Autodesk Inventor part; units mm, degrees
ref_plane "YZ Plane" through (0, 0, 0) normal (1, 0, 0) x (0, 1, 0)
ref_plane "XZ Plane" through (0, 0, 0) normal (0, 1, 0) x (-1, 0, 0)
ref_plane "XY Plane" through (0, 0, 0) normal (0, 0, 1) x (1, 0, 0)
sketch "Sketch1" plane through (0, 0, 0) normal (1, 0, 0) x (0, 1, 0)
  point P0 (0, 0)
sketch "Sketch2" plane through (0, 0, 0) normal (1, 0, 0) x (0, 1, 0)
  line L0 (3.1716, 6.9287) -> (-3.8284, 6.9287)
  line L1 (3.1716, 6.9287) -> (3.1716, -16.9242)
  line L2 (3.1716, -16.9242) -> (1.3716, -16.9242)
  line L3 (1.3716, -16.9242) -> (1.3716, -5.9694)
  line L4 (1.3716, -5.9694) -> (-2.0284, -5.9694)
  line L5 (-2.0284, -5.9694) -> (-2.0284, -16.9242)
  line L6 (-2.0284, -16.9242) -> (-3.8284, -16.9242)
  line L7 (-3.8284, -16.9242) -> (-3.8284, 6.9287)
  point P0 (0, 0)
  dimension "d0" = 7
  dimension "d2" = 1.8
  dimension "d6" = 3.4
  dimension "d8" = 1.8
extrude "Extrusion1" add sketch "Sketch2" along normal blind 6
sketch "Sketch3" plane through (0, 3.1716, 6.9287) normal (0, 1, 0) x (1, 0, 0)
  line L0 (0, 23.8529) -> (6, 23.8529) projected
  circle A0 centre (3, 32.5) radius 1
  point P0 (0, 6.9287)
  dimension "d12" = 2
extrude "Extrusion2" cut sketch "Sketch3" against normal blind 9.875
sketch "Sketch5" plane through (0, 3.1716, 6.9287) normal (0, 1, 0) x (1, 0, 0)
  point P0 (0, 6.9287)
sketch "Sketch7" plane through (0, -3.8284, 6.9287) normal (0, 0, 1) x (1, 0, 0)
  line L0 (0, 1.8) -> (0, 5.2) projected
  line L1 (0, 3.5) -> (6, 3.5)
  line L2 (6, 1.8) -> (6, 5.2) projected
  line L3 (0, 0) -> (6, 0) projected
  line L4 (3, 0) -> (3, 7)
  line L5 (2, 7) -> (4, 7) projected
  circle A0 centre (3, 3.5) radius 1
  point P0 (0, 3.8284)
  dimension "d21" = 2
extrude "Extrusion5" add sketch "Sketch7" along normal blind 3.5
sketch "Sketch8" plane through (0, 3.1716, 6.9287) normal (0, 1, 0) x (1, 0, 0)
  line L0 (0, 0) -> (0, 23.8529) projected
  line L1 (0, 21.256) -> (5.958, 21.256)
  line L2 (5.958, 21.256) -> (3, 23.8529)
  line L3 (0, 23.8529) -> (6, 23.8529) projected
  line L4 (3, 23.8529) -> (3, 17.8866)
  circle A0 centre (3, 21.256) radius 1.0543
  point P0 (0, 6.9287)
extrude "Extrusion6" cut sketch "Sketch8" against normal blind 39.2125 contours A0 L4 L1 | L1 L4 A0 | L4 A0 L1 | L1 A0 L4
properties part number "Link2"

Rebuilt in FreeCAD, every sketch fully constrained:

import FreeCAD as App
import Part
import Sketcher

V = App.Vector
Q = App.Units.Quantity


def add_polygon(sketch, points):
    """Adds a closed chain of lines whose ends are joined by coincident constraints."""
    first, n = sketch.GeometryCount, len(points)
    for a, b in zip(points, points[1:] + points[:1]):
        sketch.addGeometry(Part.LineSegment(App.Vector(*a, 0), App.Vector(*b, 0)), False)
    for i in range(n):
        sketch.addConstraint(Sketcher.Constraint("Coincident", first + i, 2, first + (i + 1) % n, 1))

doc = App.newDocument("Part")
body = doc.addObject("PartDesign::Body", "Body")

sketch1 = body.newObject("Sketcher::SketchObject", "Sketch")
sketch1.AttachmentSupport = (doc.getObject("YZ_Plane"), [""])
sketch1.MapMode = "FlatFace"
add_polygon(sketch1, [(3.1716, -16.9242), (3.1716, 6.9287), (-3.8284, 6.9287), (-3.8284, -16.9242), (-2.0284, -16.9242), (-2.0284, -5.9694), (1.3716, -5.9694), (1.3716, -16.9242)])
sketch1.addConstraint([
    Sketcher.Constraint("Vertical", 0),
    Sketcher.Constraint("Horizontal", 1),
    Sketcher.Constraint("Vertical", 2),
    Sketcher.Constraint("Horizontal", 3),
    Sketcher.Constraint("Vertical", 4),
    Sketcher.Constraint("Horizontal", 5),
    Sketcher.Constraint("Vertical", 6),
    Sketcher.Constraint("Horizontal", 7),
    Sketcher.Constraint("Horizontal", 3, 2, 6, 2),
    Sketcher.Constraint("Equal", 3, 7),
    Sketcher.Constraint("DistanceX", 1, 2, 1, 1, Q("7 mm")),
    Sketcher.Constraint("DistanceX", 3, 1, 3, 2, Q("1.8 mm")),
    Sketcher.Constraint("DistanceY", 0, 1, 0, 2, Q("23.853 mm")),
    Sketcher.Constraint("DistanceY", 4, 1, 4, 2, Q("10.9548 mm")),
    Sketcher.Constraint("DistanceX", -1, 1, 0, 2, Q("3.1716 mm")),
    Sketcher.Constraint("DistanceY", -1, 1, 0, 2, Q("6.9287 mm")),
])
pad1 = body.newObject("PartDesign::Pad", "Pad")
pad1.Profile = sketch1
pad1.Length = 6

sketch2 = body.newObject("Sketcher::SketchObject", "Sketch001")
sketch2.AttachmentSupport = (doc.getObject("XZ_Plane"), [""])
sketch2.MapMode = "FlatFace"
sketch2.AttachmentOffset = App.Placement(V(0, 0, -3.1716), App.Rotation())
sketch2.addGeometry(Part.Circle(V(3, -25.5713, 0), V(0, 0, 1), 1), False)
sketch2.addConstraint([
    Sketcher.Constraint("Diameter", 0, Q("2 mm")),
    Sketcher.Constraint("DistanceX", -1, 1, 0, 3, Q("3 mm")),
    Sketcher.Constraint("DistanceY", 0, 3, -1, 1, Q("25.5713 mm")),
])
pocket1 = body.newObject("PartDesign::Pocket", "Pocket")
pocket1.Profile = sketch2
pocket1.Length = 9.875
pocket1.Reversed = True

sketch3 = body.newObject("Sketcher::SketchObject", "Sketch002")
sketch3.AttachmentSupport = (doc.getObject("XY_Plane"), [""])
sketch3.MapMode = "FlatFace"
sketch3.AttachmentOffset = App.Placement(V(0, 0, 6.9287), App.Rotation())
sketch3.addGeometry(Part.Circle(V(3, -0.3284, 0), V(0, 0, 1), 1), False)
sketch3.addConstraint([
    Sketcher.Constraint("Diameter", 0, Q("2 mm")),
    Sketcher.Constraint("DistanceX", -1, 1, 0, 3, Q("3 mm")),
    Sketcher.Constraint("DistanceY", 0, 3, -1, 1, Q("0.3284 mm")),
])
pad2 = body.newObject("PartDesign::Pad", "Pad001")
pad2.Profile = sketch3
pad2.Length = 3.5

sketch4 = body.newObject("Sketcher::SketchObject", "Sketch003")
sketch4.AttachmentSupport = (doc.getObject("XZ_Plane"), [""])
sketch4.MapMode = "FlatFace"
sketch4.AttachmentOffset = App.Placement(V(0, 0, -3.1716), App.Rotation())
sketch4.addGeometry(Part.Circle(V(3, -14.3273, 0), V(0, 0, 1), 1.0543), False)
sketch4.addConstraint([
    Sketcher.Constraint("DistanceX", -1, 1, 0, 3, Q("3 mm")),
    Sketcher.Constraint("Diameter", 0, Q("2.1086 mm")),
    Sketcher.Constraint("DistanceY", 0, 3, -1, 1, Q("14.3273 mm")),
])
pocket2 = body.newObject("PartDesign::Pocket", "Pocket001")
pocket2.Profile = sketch4
pocket2.Length = 39.2125
pocket2.Reversed = True

doc.recompute()
